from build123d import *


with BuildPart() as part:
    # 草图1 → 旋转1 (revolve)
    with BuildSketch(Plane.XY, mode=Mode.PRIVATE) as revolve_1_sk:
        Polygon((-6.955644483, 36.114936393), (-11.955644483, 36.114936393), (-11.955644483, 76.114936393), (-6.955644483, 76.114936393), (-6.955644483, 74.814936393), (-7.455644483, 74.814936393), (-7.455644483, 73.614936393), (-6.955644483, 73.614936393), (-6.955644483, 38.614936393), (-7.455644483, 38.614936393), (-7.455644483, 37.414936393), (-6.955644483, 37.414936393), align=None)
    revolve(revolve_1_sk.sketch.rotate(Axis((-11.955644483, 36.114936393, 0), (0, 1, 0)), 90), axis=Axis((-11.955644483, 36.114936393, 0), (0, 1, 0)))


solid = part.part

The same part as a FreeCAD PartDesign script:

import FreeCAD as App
import Part
import Sketcher
from FreeCAD import Vector
Q = App.Units.Quantity

doc = App.newDocument("Part")
params = doc.addObject("Spreadsheet::Sheet", "Params")
for row, (alias, value) in enumerate([
    ("sketch1_width", "5 mm"),
    ("sketch1_height", "35 mm"),
    ("sketch1_height2", "40 mm"),
    ("sketch1_width2", "0.5 mm"),
    ("sketch1_height3", "1.3 mm"),
    ("revolution_angle", "360 deg"),
], start=1):
    params.set(f"A{row}", alias)
    params.set(f"B{row}", "=" + value)
    params.setAlias(f"B{row}", alias)

body = doc.addObject("PartDesign::Body", "Body")

sketch1 = doc.addObject("Sketcher::SketchObject", "Sketch")
body.addObject(sketch1)
sketch1.AttachmentSupport = (doc.XY_Plane, [""])
sketch1.MapMode = "FlatFace"
sketch1.addGeometry(Part.LineSegment(Vector(-12, 36.1, 0), Vector(-7, 36.1, 0)), False)
sketch1.addGeometry(Part.LineSegment(Vector(-7, 36.1, 0), Vector(-7, 37.4, 0)), False)
sketch1.addGeometry(Part.LineSegment(Vector(-7, 37.4, 0), Vector(-7.5, 37.4, 0)), False)
sketch1.addGeometry(Part.LineSegment(Vector(-7.5, 37.4, 0), Vector(-7.5, 38.6, 0)), False)
sketch1.addGeometry(Part.LineSegment(Vector(-7.5, 38.6, 0), Vector(-7, 38.6, 0)), False)
sketch1.addGeometry(Part.LineSegment(Vector(-7, 38.6, 0), Vector(-7, 73.6, 0)), False)
sketch1.addGeometry(Part.LineSegment(Vector(-7, 73.6, 0), Vector(-7.5, 73.6, 0)), False)
sketch1.addGeometry(Part.LineSegment(Vector(-7.5, 73.6, 0), Vector(-7.5, 74.8, 0)), False)
sketch1.addGeometry(Part.LineSegment(Vector(-7.5, 74.8, 0), Vector(-7, 74.8, 0)), False)
sketch1.addGeometry(Part.LineSegment(Vector(-7, 74.8, 0), Vector(-7, 76.1, 0)), False)
sketch1.addGeometry(Part.LineSegment(Vector(-7, 76.1, 0), Vector(-12, 76.1, 0)), False)
sketch1.addGeometry(Part.LineSegment(Vector(-12, 76.1, 0), Vector(-12, 36.1, 0)), False)
sketch1.addGeometry(Part.LineSegment(Vector(-12, 36.1, 0), Vector(-12, 76.1, 0)), True)
sketch1.addConstraint(Sketcher.Constraint("Coincident", 0, 2, 1, 1))
sketch1.addConstraint(Sketcher.Constraint("Coincident", 1, 2, 2, 1))
sketch1.addConstraint(Sketcher.Constraint("Coincident", 2, 2, 3, 1))
sketch1.addConstraint(Sketcher.Constraint("Coincident", 3, 2, 4, 1))
sketch1.addConstraint(Sketcher.Constraint("Coincident", 4, 2, 5, 1))
sketch1.addConstraint(Sketcher.Constraint("Coincident", 5, 2, 6, 1))
sketch1.addConstraint(Sketcher.Constraint("Coincident", 6, 2, 7, 1))
sketch1.addConstraint(Sketcher.Constraint("Coincident", 7, 2, 8, 1))
sketch1.addConstraint(Sketcher.Constraint("Coincident", 8, 2, 9, 1))
sketch1.addConstraint(Sketcher.Constraint("Coincident", 9, 2, 10, 1))
sketch1.addConstraint(Sketcher.Constraint("Coincident", 10, 2, 11, 1))
sketch1.addConstraint(Sketcher.Constraint("Coincident", 11, 2, 0, 1))
sketch1.addConstraint(Sketcher.Constraint("Horizontal", 0))
sketch1.addConstraint(Sketcher.Constraint("Vertical", 1))
sketch1.addConstraint(Sketcher.Constraint("Horizontal", 2))
sketch1.addConstraint(Sketcher.Constraint("Vertical", 3))
sketch1.addConstraint(Sketcher.Constraint("Horizontal", 4))
sketch1.addConstraint(Sketcher.Constraint("Vertical", 5))
sketch1.addConstraint(Sketcher.Constraint("Horizontal", 6))
sketch1.addConstraint(Sketcher.Constraint("Vertical", 7))
sketch1.addConstraint(Sketcher.Constraint("Horizontal", 8))
sketch1.addConstraint(Sketcher.Constraint("Vertical", 9))
sketch1.addConstraint(Sketcher.Constraint("Horizontal", 10))
sketch1.addConstraint(Sketcher.Constraint("Vertical", 11))
sketch1.addConstraint(Sketcher.Constraint("Vertical", 12))
sketch1.addConstraint(Sketcher.Constraint("Coincident", 12, 1, 11, 2))
sketch1.addConstraint(Sketcher.Constraint("Horizontal", 9, 2, 12, 2))
sketch1.addConstraint(Sketcher.Constraint("Vertical", 1, 2, 4, 2))
sketch1.addConstraint(Sketcher.Constraint("Vertical", 3, 2, 6, 2))
sketch1.addConstraint(Sketcher.Constraint("Vertical", 5, 2, 8, 2))
sketch1.addConstraint(Sketcher.Constraint("Equal", 3, 7))
sketch1.addConstraint(Sketcher.Constraint("Equal", 1, 9))
sketch1.addConstraint(Sketcher.Constraint("DistanceX", 0, 1, 0, 2, Q("5 mm")))
sketch1.addConstraint(Sketcher.Constraint("DistanceY", 5, 1, 5, 2, Q("35 mm")))
sketch1.addConstraint(Sketcher.Constraint("DistanceY", 11, 2, 11, 1, Q("40 mm")))
sketch1.addConstraint(Sketcher.Constraint("DistanceX", 2, 2, 2, 1, Q("0.5 mm")))
sketch1.addConstraint(Sketcher.Constraint("DistanceY", 1, 1, 1, 2, Q("1.3 mm")))
sketch1.addConstraint(Sketcher.Constraint("DistanceX", 0, 2, -1, 1, Q("6.955644 mm")))
sketch1.addConstraint(Sketcher.Constraint("DistanceY", -1, 1, 0, 2, Q("36.114936 mm")))
sketch1.setExpression("Constraints[32]", "Params.sketch1_width")
sketch1.setExpression("Constraints[33]", "Params.sketch1_height")
sketch1.setExpression("Constraints[34]", "Params.sketch1_height2")
sketch1.setExpression("Constraints[35]", "Params.sketch1_width2")
sketch1.setExpression("Constraints[36]", "Params.sketch1_height3")
revolution = doc.addObject("PartDesign::Revolution", "Revolution")
body.addObject(revolution)
revolution.Profile = sketch1
revolution.ReferenceAxis = (sketch1, ["Axis0"])
revolution.setExpression("Angle", "Params.revolution_angle")

doc.recompute()
